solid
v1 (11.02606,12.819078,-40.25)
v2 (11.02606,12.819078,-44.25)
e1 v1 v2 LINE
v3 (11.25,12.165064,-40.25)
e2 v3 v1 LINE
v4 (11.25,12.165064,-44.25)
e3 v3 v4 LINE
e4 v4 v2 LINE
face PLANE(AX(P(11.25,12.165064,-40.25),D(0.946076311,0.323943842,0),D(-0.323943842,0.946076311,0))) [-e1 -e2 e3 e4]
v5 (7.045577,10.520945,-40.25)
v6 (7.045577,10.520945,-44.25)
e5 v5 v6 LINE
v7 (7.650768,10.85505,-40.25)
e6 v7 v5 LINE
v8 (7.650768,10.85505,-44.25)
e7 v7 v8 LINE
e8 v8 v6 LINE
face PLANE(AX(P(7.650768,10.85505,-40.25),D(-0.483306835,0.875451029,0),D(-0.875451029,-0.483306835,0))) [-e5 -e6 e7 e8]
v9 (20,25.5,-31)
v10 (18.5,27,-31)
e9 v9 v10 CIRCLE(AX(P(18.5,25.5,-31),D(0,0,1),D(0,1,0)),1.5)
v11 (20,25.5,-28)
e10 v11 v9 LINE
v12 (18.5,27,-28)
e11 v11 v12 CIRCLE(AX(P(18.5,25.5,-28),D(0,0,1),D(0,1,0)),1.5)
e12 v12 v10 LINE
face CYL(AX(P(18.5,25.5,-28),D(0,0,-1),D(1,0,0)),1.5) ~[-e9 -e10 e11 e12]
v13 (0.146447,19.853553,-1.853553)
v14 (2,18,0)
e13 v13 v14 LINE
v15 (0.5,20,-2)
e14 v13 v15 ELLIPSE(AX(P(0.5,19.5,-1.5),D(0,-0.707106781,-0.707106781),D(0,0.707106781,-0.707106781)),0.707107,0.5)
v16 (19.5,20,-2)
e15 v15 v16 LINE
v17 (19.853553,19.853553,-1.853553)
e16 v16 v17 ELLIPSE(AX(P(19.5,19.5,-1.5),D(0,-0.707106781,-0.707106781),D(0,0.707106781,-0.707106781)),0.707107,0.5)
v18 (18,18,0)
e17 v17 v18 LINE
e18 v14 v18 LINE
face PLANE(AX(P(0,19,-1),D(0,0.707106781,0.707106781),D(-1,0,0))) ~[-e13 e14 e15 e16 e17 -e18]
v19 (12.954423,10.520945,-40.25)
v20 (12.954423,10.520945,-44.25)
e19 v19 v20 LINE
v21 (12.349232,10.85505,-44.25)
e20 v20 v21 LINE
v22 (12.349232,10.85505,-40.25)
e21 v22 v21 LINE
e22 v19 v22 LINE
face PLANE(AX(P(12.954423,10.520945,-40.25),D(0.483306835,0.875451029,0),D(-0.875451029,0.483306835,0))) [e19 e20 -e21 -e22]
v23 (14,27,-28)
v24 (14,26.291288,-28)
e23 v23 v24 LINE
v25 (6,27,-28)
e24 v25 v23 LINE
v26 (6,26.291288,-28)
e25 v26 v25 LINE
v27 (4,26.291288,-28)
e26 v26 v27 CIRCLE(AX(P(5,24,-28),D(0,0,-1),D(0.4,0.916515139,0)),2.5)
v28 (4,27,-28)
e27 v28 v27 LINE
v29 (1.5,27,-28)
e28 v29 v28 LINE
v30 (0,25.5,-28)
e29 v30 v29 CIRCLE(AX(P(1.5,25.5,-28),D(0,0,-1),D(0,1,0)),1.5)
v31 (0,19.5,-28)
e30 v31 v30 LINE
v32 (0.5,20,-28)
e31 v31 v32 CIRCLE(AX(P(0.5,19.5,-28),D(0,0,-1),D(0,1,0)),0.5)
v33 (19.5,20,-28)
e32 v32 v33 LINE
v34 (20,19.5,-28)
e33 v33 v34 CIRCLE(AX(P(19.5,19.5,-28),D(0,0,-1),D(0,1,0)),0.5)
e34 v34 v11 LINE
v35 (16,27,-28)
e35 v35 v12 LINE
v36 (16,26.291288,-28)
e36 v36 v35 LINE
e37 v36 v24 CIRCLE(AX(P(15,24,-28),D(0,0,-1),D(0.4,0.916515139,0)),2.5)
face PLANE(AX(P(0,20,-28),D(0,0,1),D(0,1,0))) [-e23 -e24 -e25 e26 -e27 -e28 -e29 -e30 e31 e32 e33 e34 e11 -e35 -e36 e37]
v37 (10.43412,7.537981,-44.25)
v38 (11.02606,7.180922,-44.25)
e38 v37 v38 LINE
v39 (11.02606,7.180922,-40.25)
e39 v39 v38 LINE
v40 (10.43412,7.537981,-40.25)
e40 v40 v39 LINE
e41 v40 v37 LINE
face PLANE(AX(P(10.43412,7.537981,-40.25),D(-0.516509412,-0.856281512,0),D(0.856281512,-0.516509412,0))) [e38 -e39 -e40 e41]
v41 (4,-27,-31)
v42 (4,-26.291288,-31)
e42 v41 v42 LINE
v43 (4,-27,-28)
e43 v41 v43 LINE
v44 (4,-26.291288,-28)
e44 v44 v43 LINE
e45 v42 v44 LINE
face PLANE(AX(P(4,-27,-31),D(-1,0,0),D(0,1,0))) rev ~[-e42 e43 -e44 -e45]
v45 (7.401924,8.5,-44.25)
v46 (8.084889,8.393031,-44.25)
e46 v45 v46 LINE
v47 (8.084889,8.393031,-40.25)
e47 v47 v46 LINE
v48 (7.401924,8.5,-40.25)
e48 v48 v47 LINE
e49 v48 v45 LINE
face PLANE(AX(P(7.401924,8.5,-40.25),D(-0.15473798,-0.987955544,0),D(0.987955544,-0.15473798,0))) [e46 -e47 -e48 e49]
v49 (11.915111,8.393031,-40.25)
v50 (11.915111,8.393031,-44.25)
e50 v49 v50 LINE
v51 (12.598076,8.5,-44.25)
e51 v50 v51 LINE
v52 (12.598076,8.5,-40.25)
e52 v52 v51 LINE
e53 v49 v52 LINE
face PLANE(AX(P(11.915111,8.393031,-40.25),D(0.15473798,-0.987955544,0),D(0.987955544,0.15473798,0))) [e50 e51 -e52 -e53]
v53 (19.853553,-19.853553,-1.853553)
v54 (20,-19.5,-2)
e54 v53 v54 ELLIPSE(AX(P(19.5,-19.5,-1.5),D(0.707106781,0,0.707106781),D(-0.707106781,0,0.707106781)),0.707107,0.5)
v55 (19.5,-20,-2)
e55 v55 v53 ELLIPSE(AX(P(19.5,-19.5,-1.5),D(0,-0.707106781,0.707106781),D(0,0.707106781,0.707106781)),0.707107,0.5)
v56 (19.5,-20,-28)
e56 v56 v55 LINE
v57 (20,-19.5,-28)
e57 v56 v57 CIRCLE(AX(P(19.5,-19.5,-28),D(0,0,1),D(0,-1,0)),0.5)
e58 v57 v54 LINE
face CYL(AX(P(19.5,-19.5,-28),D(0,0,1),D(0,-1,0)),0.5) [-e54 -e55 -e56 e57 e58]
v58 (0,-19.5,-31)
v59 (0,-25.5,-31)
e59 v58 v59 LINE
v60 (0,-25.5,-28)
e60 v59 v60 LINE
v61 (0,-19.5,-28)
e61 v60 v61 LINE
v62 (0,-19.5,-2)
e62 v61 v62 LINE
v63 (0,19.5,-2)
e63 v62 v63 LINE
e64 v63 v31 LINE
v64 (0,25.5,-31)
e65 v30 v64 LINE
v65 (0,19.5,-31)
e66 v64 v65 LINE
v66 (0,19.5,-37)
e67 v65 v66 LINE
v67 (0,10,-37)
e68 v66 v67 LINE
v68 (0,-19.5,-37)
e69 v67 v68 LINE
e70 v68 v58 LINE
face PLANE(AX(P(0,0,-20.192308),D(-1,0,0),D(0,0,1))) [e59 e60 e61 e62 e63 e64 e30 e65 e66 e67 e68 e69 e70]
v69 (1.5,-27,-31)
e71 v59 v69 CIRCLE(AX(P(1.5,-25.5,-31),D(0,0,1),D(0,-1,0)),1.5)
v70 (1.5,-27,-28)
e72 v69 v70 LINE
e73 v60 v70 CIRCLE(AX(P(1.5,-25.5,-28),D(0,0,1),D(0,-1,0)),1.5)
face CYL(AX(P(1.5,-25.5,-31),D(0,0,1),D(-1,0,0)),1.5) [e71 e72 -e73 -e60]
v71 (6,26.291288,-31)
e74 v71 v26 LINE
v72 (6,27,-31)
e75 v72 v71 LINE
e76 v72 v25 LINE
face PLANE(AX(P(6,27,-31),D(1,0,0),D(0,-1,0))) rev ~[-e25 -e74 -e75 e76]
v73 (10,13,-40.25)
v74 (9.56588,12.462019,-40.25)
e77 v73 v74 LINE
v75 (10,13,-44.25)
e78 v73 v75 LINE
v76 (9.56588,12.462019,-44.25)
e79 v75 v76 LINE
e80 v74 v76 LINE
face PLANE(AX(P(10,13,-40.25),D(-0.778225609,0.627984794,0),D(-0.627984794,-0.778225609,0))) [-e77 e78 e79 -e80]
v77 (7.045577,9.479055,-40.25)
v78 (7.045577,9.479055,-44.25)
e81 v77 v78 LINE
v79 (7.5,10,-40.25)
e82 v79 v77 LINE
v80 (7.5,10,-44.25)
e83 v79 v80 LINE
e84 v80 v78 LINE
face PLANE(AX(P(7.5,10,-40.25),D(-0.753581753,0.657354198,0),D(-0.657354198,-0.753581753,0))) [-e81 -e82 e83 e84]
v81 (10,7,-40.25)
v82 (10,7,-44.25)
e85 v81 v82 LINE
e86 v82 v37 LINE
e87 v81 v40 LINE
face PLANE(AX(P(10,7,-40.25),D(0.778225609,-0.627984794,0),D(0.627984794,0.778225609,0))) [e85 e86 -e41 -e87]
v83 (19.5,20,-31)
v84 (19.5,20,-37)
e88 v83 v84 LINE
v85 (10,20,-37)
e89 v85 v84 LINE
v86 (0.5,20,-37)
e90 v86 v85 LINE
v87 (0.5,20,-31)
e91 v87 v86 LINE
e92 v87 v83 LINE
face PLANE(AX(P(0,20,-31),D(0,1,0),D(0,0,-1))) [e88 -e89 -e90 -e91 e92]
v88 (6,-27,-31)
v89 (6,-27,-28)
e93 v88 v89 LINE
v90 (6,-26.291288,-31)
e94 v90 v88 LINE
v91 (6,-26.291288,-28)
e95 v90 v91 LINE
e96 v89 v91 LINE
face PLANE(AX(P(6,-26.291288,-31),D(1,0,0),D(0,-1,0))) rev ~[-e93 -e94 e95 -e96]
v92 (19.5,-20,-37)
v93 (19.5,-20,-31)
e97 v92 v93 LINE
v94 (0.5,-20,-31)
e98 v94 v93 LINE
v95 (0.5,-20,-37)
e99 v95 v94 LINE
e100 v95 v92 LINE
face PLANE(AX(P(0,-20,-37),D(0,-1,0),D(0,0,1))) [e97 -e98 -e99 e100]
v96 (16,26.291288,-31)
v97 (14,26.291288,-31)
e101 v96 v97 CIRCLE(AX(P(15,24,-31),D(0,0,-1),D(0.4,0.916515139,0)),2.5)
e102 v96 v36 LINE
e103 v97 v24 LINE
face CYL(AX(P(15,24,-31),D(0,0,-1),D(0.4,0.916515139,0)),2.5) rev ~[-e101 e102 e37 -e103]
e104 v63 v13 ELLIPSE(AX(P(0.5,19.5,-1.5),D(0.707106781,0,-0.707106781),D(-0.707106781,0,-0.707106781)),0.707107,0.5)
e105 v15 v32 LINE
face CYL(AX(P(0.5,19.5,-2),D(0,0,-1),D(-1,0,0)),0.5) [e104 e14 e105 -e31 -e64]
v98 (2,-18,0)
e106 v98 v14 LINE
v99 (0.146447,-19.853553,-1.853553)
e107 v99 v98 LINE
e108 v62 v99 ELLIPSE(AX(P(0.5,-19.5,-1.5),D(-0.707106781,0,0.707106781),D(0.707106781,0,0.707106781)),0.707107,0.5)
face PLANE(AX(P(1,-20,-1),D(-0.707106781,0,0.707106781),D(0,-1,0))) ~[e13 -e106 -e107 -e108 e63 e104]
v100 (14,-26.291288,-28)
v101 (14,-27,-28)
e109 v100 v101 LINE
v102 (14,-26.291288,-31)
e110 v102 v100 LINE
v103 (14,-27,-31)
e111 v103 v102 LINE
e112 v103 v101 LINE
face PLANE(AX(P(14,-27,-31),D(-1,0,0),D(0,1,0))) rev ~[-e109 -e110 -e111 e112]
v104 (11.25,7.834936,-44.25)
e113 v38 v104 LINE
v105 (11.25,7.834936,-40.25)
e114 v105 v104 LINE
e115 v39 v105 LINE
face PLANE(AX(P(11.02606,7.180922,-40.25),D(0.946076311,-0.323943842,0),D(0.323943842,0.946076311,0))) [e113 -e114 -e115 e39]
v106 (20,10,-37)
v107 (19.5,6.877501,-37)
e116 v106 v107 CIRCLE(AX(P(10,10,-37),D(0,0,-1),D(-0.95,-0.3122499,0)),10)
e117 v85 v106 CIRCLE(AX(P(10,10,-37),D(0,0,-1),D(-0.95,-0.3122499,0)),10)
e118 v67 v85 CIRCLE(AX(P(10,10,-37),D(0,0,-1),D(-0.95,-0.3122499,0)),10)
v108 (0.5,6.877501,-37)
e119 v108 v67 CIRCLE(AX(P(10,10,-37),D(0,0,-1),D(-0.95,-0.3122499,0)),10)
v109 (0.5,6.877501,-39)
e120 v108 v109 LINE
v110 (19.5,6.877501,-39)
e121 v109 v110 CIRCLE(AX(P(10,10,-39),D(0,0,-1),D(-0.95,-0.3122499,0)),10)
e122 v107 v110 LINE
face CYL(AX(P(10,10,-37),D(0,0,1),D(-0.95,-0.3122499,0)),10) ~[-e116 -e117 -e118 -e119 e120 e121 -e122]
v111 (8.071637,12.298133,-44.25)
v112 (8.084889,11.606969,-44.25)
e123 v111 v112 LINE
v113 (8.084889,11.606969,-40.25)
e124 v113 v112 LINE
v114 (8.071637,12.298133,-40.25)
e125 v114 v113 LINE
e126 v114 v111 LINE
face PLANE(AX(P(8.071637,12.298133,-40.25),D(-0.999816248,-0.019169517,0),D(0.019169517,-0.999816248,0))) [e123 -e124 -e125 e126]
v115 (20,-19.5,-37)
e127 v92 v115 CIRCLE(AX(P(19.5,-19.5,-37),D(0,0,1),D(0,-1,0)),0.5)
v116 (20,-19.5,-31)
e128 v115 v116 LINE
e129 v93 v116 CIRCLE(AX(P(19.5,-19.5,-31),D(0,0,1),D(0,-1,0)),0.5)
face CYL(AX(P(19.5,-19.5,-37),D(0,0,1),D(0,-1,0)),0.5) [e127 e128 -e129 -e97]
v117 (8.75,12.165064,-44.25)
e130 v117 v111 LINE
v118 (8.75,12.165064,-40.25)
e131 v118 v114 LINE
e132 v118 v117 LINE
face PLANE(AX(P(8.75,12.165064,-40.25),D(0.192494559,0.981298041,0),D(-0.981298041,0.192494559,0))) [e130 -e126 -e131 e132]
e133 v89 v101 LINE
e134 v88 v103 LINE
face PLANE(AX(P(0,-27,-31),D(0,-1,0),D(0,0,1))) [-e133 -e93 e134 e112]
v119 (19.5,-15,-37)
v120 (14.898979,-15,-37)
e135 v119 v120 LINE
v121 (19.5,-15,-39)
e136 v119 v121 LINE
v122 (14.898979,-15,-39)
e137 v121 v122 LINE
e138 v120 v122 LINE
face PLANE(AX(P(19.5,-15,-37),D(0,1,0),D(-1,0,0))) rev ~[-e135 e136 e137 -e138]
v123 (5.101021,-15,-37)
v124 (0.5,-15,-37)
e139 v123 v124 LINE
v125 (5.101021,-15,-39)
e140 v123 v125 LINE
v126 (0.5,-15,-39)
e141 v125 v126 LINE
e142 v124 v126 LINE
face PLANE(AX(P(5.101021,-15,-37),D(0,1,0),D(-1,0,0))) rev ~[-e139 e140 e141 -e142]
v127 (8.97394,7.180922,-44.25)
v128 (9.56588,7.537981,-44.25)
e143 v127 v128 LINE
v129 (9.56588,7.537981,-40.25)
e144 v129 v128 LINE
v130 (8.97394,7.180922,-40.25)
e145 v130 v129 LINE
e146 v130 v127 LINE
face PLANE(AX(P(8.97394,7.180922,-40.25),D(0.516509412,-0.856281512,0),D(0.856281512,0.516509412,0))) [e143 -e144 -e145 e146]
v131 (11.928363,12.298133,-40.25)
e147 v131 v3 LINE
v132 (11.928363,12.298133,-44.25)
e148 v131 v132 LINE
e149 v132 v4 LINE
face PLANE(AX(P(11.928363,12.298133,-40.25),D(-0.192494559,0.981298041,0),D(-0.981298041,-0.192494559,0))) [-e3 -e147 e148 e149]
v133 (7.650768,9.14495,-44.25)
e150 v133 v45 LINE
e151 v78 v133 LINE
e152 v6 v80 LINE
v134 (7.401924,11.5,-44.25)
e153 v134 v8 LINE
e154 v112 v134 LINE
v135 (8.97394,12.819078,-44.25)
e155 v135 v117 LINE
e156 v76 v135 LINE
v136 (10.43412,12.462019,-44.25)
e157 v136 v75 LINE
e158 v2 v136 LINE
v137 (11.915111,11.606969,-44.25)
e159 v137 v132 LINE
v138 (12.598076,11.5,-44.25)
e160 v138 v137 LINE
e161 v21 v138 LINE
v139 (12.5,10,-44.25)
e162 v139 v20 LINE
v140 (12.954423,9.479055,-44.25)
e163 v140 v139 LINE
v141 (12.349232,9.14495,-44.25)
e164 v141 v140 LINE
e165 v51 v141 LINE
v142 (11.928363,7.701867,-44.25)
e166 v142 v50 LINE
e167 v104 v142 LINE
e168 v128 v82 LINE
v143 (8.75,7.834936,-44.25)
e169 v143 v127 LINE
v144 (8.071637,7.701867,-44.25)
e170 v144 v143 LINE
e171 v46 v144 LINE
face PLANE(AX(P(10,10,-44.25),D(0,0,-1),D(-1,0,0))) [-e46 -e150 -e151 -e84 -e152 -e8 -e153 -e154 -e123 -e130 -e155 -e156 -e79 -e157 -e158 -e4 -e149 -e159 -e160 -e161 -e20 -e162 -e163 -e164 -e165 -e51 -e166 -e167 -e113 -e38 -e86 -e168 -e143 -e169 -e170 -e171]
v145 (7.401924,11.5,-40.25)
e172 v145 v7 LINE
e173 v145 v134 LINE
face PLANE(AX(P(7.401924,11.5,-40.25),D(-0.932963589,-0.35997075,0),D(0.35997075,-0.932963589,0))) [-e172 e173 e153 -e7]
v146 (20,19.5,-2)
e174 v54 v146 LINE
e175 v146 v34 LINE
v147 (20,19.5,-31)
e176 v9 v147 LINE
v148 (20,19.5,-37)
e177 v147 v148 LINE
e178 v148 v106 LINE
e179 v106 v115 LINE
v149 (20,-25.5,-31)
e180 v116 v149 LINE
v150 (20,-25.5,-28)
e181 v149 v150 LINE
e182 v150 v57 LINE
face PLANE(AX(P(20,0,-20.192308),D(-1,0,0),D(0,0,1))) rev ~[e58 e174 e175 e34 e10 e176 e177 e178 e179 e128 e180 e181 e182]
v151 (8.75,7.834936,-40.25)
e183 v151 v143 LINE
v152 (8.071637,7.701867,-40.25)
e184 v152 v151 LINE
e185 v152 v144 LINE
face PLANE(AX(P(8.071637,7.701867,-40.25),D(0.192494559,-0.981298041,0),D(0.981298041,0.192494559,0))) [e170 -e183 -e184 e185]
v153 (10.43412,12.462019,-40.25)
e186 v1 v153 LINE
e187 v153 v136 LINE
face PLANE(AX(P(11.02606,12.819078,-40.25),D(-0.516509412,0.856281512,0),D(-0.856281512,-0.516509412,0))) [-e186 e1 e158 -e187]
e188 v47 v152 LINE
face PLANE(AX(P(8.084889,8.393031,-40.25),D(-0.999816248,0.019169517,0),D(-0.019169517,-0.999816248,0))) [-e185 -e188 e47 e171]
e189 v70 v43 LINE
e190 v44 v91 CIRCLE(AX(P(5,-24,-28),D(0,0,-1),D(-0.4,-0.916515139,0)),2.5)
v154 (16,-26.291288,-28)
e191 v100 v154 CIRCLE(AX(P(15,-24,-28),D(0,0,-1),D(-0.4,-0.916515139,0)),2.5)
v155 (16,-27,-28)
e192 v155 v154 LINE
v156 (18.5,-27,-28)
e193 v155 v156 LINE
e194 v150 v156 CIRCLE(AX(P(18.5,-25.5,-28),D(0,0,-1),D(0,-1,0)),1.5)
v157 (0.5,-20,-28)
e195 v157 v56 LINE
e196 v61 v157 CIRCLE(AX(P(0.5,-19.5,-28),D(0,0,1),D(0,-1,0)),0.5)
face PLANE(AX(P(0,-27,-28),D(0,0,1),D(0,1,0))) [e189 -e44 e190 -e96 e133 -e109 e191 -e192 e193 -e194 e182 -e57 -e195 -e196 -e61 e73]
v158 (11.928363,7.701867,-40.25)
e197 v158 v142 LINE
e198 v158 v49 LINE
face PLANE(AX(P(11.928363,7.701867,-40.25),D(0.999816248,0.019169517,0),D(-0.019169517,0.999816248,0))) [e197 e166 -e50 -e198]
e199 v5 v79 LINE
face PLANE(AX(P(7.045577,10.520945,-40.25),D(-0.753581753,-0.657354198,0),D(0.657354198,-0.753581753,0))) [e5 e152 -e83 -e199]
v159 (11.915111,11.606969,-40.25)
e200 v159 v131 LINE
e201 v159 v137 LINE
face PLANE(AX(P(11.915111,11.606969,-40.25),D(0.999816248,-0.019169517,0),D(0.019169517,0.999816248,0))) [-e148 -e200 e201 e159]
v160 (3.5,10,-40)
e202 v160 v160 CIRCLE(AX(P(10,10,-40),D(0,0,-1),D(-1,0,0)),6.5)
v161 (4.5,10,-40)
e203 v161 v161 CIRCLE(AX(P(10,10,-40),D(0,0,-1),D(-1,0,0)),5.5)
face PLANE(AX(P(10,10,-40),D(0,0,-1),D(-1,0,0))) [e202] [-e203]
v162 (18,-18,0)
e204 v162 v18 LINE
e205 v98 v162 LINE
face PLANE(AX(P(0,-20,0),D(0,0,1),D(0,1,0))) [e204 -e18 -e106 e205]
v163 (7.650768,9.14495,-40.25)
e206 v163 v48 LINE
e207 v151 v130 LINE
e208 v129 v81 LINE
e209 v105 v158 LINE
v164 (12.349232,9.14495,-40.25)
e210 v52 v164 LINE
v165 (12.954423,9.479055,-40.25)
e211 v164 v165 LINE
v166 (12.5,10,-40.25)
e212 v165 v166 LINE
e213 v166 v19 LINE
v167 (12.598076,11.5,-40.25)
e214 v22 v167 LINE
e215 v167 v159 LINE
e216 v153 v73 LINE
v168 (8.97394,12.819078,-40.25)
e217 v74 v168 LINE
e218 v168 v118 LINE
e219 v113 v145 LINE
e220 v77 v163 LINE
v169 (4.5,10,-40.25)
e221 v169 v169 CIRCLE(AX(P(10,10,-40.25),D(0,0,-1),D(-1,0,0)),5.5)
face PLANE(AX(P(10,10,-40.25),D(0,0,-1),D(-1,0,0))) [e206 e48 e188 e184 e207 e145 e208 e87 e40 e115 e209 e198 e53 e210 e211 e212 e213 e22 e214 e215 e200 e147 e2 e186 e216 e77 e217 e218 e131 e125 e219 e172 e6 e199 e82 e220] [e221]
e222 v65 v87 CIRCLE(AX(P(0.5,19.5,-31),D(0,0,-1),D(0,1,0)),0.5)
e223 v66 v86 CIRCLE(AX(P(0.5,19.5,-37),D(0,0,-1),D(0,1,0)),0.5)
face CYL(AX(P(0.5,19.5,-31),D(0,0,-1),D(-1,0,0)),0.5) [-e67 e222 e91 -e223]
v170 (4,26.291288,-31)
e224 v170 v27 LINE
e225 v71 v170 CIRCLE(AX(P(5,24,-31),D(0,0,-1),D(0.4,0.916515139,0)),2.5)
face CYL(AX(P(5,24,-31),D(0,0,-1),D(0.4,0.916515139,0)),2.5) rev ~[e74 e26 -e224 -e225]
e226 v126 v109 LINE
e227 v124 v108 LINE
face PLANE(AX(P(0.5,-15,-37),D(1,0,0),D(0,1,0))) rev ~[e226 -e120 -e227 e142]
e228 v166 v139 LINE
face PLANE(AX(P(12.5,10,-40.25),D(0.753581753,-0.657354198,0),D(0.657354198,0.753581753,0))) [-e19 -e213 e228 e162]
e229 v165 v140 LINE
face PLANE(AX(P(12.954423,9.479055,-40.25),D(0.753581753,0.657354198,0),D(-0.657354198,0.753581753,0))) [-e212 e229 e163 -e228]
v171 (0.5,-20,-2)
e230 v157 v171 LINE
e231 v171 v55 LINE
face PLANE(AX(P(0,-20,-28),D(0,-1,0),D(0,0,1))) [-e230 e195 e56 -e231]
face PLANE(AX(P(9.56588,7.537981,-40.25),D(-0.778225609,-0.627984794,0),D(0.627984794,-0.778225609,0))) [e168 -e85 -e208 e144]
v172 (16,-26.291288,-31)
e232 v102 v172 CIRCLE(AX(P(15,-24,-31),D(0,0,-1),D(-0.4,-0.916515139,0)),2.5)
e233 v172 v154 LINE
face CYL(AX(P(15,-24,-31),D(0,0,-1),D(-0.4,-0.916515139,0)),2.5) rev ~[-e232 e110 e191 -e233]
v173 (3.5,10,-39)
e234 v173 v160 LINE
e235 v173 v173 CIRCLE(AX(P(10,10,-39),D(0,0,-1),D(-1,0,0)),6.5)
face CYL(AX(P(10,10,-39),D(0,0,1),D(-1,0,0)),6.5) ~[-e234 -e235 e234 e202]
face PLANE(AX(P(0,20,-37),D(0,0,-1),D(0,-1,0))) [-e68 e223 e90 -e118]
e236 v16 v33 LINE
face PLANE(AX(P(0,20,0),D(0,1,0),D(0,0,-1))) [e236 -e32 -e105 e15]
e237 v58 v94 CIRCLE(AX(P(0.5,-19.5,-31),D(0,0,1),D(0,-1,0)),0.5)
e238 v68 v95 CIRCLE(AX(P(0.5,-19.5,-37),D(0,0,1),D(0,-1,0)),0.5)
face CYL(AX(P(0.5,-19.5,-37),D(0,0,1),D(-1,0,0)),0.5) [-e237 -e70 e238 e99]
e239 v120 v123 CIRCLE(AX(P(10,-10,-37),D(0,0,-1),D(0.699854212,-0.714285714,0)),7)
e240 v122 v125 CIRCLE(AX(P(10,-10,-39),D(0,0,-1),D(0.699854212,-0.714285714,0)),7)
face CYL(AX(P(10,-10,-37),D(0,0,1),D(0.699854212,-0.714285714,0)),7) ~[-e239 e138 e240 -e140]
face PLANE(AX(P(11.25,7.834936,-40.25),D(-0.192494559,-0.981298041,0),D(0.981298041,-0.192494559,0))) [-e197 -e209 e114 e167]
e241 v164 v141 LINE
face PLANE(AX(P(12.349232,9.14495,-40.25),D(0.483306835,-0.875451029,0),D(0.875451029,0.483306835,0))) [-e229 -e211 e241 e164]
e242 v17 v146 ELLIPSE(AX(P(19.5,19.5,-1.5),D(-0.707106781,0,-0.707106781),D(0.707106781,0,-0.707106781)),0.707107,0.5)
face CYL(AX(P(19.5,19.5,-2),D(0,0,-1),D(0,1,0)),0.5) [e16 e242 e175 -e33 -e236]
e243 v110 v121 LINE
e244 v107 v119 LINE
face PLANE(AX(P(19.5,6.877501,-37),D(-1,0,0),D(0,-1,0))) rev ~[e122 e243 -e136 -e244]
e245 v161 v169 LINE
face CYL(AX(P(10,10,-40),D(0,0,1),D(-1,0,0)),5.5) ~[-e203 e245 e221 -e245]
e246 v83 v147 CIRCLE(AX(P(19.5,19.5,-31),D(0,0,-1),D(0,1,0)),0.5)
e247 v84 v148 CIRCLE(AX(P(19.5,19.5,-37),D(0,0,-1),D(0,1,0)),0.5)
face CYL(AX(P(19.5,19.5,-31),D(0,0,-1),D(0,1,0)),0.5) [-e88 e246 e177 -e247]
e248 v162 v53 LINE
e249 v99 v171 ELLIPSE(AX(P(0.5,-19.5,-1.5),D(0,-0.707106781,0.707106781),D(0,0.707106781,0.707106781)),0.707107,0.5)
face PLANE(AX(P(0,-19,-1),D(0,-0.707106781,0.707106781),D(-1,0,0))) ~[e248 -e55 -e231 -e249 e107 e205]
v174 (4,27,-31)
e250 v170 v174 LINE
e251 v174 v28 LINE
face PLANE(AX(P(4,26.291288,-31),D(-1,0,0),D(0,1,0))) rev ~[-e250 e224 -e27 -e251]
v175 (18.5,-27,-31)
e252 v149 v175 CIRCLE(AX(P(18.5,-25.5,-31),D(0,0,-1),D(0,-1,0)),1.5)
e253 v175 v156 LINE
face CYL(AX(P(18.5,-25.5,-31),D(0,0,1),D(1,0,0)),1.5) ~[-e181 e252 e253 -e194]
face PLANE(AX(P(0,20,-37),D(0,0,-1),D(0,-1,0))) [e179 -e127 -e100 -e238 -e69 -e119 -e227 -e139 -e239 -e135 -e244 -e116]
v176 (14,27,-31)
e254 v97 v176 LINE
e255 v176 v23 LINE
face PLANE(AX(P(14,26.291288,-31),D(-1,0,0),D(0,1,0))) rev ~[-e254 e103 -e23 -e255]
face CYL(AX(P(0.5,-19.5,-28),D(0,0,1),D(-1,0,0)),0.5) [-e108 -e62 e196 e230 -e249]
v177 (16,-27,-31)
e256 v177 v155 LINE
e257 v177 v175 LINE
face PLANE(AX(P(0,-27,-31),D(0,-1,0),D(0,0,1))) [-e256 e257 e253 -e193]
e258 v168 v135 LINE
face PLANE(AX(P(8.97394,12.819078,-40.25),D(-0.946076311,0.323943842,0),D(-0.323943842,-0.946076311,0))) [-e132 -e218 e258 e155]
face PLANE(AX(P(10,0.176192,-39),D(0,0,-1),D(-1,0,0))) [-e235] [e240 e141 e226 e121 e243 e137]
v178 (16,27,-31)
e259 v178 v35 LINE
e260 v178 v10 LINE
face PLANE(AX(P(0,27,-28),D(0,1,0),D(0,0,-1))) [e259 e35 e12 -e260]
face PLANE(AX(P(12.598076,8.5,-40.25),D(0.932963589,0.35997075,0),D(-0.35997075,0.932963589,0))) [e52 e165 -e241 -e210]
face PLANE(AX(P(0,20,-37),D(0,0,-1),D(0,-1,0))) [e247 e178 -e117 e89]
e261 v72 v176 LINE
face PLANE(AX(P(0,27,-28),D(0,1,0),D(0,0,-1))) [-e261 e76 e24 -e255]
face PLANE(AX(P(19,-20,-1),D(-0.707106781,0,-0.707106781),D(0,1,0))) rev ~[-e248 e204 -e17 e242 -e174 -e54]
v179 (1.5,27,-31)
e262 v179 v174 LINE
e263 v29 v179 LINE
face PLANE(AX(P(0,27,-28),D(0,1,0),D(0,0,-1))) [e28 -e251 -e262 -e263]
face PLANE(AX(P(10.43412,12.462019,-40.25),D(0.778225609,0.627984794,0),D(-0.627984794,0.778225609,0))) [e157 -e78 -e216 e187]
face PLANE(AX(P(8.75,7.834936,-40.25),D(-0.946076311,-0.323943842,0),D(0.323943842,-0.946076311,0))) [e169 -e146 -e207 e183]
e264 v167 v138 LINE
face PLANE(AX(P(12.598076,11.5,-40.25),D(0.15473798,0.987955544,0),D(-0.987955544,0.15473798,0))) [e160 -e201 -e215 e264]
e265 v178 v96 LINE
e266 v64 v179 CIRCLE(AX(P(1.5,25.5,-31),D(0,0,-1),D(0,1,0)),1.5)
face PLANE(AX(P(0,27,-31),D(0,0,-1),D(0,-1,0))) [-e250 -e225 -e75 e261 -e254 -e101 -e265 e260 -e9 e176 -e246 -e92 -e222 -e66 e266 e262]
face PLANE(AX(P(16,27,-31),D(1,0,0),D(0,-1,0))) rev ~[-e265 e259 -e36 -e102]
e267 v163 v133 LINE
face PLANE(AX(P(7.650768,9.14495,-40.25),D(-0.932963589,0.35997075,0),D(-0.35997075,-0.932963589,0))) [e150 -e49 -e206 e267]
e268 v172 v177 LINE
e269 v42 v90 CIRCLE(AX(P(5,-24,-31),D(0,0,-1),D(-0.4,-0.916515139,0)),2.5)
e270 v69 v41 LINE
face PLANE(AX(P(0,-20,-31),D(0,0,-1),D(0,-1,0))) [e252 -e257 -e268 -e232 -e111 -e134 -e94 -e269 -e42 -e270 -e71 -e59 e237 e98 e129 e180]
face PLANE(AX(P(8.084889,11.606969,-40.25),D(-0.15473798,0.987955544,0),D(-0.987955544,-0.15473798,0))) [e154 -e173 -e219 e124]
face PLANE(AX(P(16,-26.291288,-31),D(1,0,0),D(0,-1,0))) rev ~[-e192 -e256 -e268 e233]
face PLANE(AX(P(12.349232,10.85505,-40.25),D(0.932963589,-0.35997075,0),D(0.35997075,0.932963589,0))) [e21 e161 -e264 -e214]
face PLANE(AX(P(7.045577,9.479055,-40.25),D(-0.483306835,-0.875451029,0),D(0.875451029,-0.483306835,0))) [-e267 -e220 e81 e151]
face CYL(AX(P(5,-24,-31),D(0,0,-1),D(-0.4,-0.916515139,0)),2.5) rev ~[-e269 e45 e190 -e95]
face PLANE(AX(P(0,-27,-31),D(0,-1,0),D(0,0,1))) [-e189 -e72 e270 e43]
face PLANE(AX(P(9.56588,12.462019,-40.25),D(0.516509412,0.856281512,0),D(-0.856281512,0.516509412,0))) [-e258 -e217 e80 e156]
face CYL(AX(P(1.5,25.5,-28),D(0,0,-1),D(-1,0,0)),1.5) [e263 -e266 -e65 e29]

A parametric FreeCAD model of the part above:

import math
import FreeCAD as App
import Part
import Sketcher
from FreeCAD import Vector
Q = App.Units.Quantity


def edges_at(feature, points):
    """Names of the edges that pass closest to the given points."""
    edges = feature.Shape.Edges
    near = lambda p: min(range(len(edges)), key=lambda i: edges[i].distToShape(Part.Vertex(*p))[0])
    return sorted({f"Edge{near(p) + 1}" for p in points})

doc = App.newDocument("Part")
body = doc.addObject("PartDesign::Body", "Body")

sketch1 = body.newObject("Sketcher::SketchObject", "Sketch")
sketch1.AttachmentSupport = (doc.getObject("YZ_Plane"), [""])
sketch1.MapMode = "FlatFace"
sketch1.addGeometry([
    Part.LineSegment(Vector(20, 0, 0), Vector(-20, 0, 0)),
    Part.LineSegment(Vector(-20, 0, 0), Vector(-20, -28, 0)),
    Part.LineSegment(Vector(-20, -28, 0), Vector(-27, -28, 0)),
    Part.LineSegment(Vector(-27, -28, 0), Vector(-27, -31, 0)),
    Part.LineSegment(Vector(-27, -31, 0), Vector(-20, -31, 0)),
    Part.LineSegment(Vector(-20, -31, 0), Vector(-20, -37, 0)),
    Part.LineSegment(Vector(-20, -37, 0), Vector(20, -37, 0)),
    Part.LineSegment(Vector(20, -37, 0), Vector(20, -31, 0)),
    Part.LineSegment(Vector(20, -31, 0), Vector(27, -31, 0)),
    Part.LineSegment(Vector(27, -31, 0), Vector(27, -28, 0)),
    Part.LineSegment(Vector(27, -28, 0), Vector(20, -28, 0)),
    Part.LineSegment(Vector(20, -28, 0), Vector(20, 0, 0)),
], False)
sketch1.addConstraint([
    Sketcher.Constraint("Coincident", 0, 2, 1, 1),
    Sketcher.Constraint("Coincident", 1, 2, 2, 1),
    Sketcher.Constraint("Coincident", 2, 2, 3, 1),
    Sketcher.Constraint("Coincident", 3, 2, 4, 1),
    Sketcher.Constraint("Coincident", 4, 2, 5, 1),
    Sketcher.Constraint("Coincident", 5, 2, 6, 1),
    Sketcher.Constraint("Coincident", 6, 2, 7, 1),
    Sketcher.Constraint("Coincident", 7, 2, 8, 1),
    Sketcher.Constraint("Coincident", 8, 2, 9, 1),
    Sketcher.Constraint("Coincident", 9, 2, 10, 1),
    Sketcher.Constraint("Coincident", 10, 2, 11, 1),
    Sketcher.Constraint("Coincident", 11, 2, 0, 1),
    Sketcher.Constraint("Horizontal", 0),
    Sketcher.Constraint("Vertical", 1),
    Sketcher.Constraint("Horizontal", 2),
    Sketcher.Constraint("Vertical", 3),
    Sketcher.Constraint("Horizontal", 4),
    Sketcher.Constraint("Vertical", 5),
    Sketcher.Constraint("Horizontal", 6),
    Sketcher.Constraint("Vertical", 7),
    Sketcher.Constraint("Horizontal", 8),
    Sketcher.Constraint("Vertical", 9),
    Sketcher.Constraint("Horizontal", 10),
    Sketcher.Constraint("Vertical", 11),
    Sketcher.Constraint("Symmetric", 0, 2, 11, 2, -1, 1),
    Sketcher.Constraint("Symmetric", 4, 2, 7, 2, -2),
    Sketcher.Constraint("Symmetric", 2, 2, 9, 2, -2),
    Sketcher.Constraint("Vertical", 1, 2, 4, 2),
    Sketcher.Constraint("DistanceX", 0, 2, 0, 1, Q("40 mm")),
    Sketcher.Constraint("DistanceX", 2, 2, 2, 1, Q("7 mm")),
    Sketcher.Constraint("DistanceY", 1, 2, 1, 1, Q("28 mm")),
    Sketcher.Constraint("DistanceY", 3, 2, 3, 1, Q("3 mm")),
    Sketcher.Constraint("DistanceY", 5, 2, 5, 1, Q("6 mm")),
])
pad1 = body.newObject("PartDesign::Pad", "Pad")
pad1.Profile = sketch1
pad1.Length = 20

sketch2 = body.newObject("Sketcher::SketchObject", "Sketch001")
sketch2.AttachmentSupport = (doc.getObject("XY_Plane"), [""])
sketch2.MapMode = "FlatFace"
sketch2.AttachmentOffset = App.Placement(Vector(0, 0, -37), App.Rotation())
sketch2.addGeometry([
    Part.ArcOfCircle(Part.Circle(Vector(10, 10, 0), Vector(0, 0, 1), 10), math.radians(-18), math.radians(198)),
    Part.LineSegment(Vector(19.5, 6.9, 0), Vector(19.5, -15, 0)),
    Part.LineSegment(Vector(19.5, -15, 0), Vector(14.9, -15, 0)),
    Part.ArcOfCircle(Part.Circle(Vector(10, -10, 0), Vector(0, 0, 1), 7), math.radians(-134), math.radians(-46)),
    Part.LineSegment(Vector(5.1, -15, 0), Vector(0.5, -15, 0)),
    Part.LineSegment(Vector(0.5, -15, 0), Vector(0.5, 6.9, 0)),
], False)
sketch2.addConstraint([
    Sketcher.Constraint("Coincident", 0, 1, 1, 1),
    Sketcher.Constraint("Coincident", 1, 2, 2, 1),
    Sketcher.Constraint("Coincident", 2, 2, 3, 2),
    Sketcher.Constraint("Coincident", 3, 1, 4, 1),
    Sketcher.Constraint("Coincident", 4, 2, 5, 1),
    Sketcher.Constraint("Coincident", 5, 2, 0, 2),
    Sketcher.Constraint("Vertical", 1),
    Sketcher.Constraint("Horizontal", 2),
    Sketcher.Constraint("Horizontal", 4),
    Sketcher.Constraint("Vertical", 5),
    Sketcher.Constraint("Symmetric", 0, 3, 3, 3, -1),
    Sketcher.Constraint("Horizontal", 2, 2, 3, 1),
    Sketcher.Constraint("Horizontal", 0, 1, 5, 2),
    Sketcher.Constraint("Radius", 0, Q("10 mm")),
    Sketcher.Constraint("Radius", 3, Q("7 mm")),
    Sketcher.Constraint("DistanceX", -1, 1, 0, 3, Q("10 mm")),
    Sketcher.Constraint("DistanceY", -1, 1, 0, 3, Q("10 mm")),
    Sketcher.Constraint("DistanceY", 1, 2, -1, 1, Q("15 mm")),
    Sketcher.Constraint("DistanceX", 4, 2, 1, 2, Q("19 mm")),
])
pad2 = body.newObject("PartDesign::Pad", "Pad001")
pad2.Profile = sketch2
pad2.Length = 2
pad2.Reversed = True

sketch3 = body.newObject("Sketcher::SketchObject", "Sketch002")
sketch3.AttachmentSupport = (doc.getObject("XY_Plane"), [""])
sketch3.MapMode = "FlatFace"
sketch3.AttachmentOffset = App.Placement(Vector(0, 0, -39), App.Rotation())
sketch3.addGeometry(Part.Circle(Vector(10, 10, 0), Vector(0, 0, 1), 6), False)
sketch3.addConstraint([
    Sketcher.Constraint("Diameter", 0, Q("13 mm")),
    Sketcher.Constraint("DistanceX", -1, 1, 0, 3, Q("10 mm")),
    Sketcher.Constraint("DistanceY", -1, 1, 0, 3, Q("10 mm")),
])
pad3 = body.newObject("PartDesign::Pad", "Pad002")
pad3.Profile = sketch3
pad3.Length = 1
pad3.Reversed = True

sketch4 = body.newObject("Sketcher::SketchObject", "Sketch003")
sketch4.AttachmentSupport = (doc.getObject("XY_Plane"), [""])
sketch4.MapMode = "FlatFace"
sketch4.AttachmentOffset = App.Placement(Vector(0, 0, -40), App.Rotation())
sketch4.addGeometry(Part.Circle(Vector(10, 10, 0), Vector(0, 0, 1), 6), False)
sketch4.addConstraint([
    Sketcher.Constraint("Diameter", 0, Q("11 mm")),
    Sketcher.Constraint("DistanceX", -1, 1, 0, 3, Q("10 mm")),
    Sketcher.Constraint("DistanceY", -1, 1, 0, 3, Q("10 mm")),
])
pad4 = body.newObject("PartDesign::Pad", "Pad003")
pad4.Profile = sketch4
pad4.Length = 0.25
pad4.Reversed = True

sketch5 = body.newObject("Sketcher::SketchObject", "Sketch004")
sketch5.AttachmentSupport = (doc.getObject("XY_Plane"), [""])
sketch5.MapMode = "FlatFace"
sketch5.AttachmentOffset = App.Placement(Vector(0, 0, -40.25), App.Rotation())
sketch5.addGeometry(Part.Circle(Vector(10, 10, 0), Vector(0, 0, 1), 3), False)
sketch5.addConstraint([
    Sketcher.Constraint("Diameter", 0, Q("6 mm")),
    Sketcher.Constraint("DistanceX", -1, 1, 0, 3, Q("10 mm")),
    Sketcher.Constraint("DistanceY", -1, 1, 0, 3, Q("10 mm")),
])
pad5 = body.newObject("PartDesign::Pad", "Pad004")
pad5.Profile = sketch5
pad5.Length = 4
pad5.Reversed = True

sketch6 = body.newObject("Sketcher::SketchObject", "Sketch005")
sketch6.AttachmentSupport = (doc.getObject("XY_Plane"), [""])
sketch6.MapMode = "FlatFace"
sketch6.AttachmentOffset = App.Placement(Vector(0, 0, -40.25), App.Rotation())
sketch6.addGeometry([
    Part.ArcOfCircle(Part.Circle(Vector(10, 10, 0), Vector(0, 0, 1), 3), math.radians(90), math.radians(110)),
    Part.LineSegment(Vector(10, 13, 0), Vector(9.6, 12.5, 0)),
    Part.LineSegment(Vector(9.6, 12.5, 0), Vector(9, 12.8, 0)),
    Part.LineSegment(Vector(10.4, 12.5, 0), Vector(10, 13, 0)),
    Part.ArcOfCircle(Part.Circle(Vector(10, 10, 0), Vector(0, 0, 1), 3), math.radians(70), math.radians(90)),
    Part.LineSegment(Vector(11, 12.8, 0), Vector(10.4, 12.5, 0)),
    Part.ArcOfCircle(Part.Circle(Vector(10, 10, 0), Vector(0, 0, 1), 3), math.radians(110), math.radians(130)),
    Part.LineSegment(Vector(9, 12.8, 0), Vector(8.8, 12.2, 0)),
    Part.LineSegment(Vector(8.8, 12.2, 0), Vector(8.1, 12.3, 0)),
    Part.LineSegment(Vector(11.2, 12.2, 0), Vector(11, 12.8, 0)),
    Part.ArcOfCircle(Part.Circle(Vector(10, 10, 0), Vector(0, 0, 1), 3), math.radians(50), math.radians(70)),
    Part.LineSegment(Vector(11.9, 12.3, 0), Vector(11.2, 12.2, 0)),
    Part.ArcOfCircle(Part.Circle(Vector(10, 10, 0), Vector(0, 0, 1), 3), math.radians(130), math.radians(150)),
    Part.LineSegment(Vector(8.1, 12.3, 0), Vector(8.1, 11.6, 0)),
    Part.LineSegment(Vector(8.1, 11.6, 0), Vector(7.4, 11.5, 0)),
    Part.LineSegment(Vector(11.9, 11.6, 0), Vector(11.9, 12.3, 0)),
    Part.ArcOfCircle(Part.Circle(Vector(10, 10, 0), Vector(0, 0, 1), 3), math.radians(30), math.radians(50)),
    Part.LineSegment(Vector(12.6, 11.5, 0), Vector(11.9, 11.6, 0)),
    Part.ArcOfCircle(Part.Circle(Vector(10, 10, 0), Vector(0, 0, 1), 3), math.radians(150), math.radians(170)),
    Part.LineSegment(Vector(7.4, 11.5, 0), Vector(7.7, 10.9, 0)),
    Part.LineSegment(Vector(7.7, 10.9, 0), Vector(7, 10.5, 0)),
    Part.LineSegment(Vector(12.3, 10.9, 0), Vector(12.6, 11.5, 0)),
    Part.ArcOfCircle(Part.Circle(Vector(10, 10, 0), Vector(0, 0, 1), 3), math.radians(10), math.radians(30)),
    Part.LineSegment(Vector(13, 10.5, 0), Vector(12.3, 10.9, 0)),
    Part.ArcOfCircle(Part.Circle(Vector(10, 10, 0), Vector(0, 0, 1), 3), math.radians(170), math.radians(190)),
    Part.LineSegment(Vector(7, 10.5, 0), Vector(7.5, 10, 0)),
    Part.LineSegment(Vector(7.5, 10, 0), Vector(7, 9.5, 0)),
    Part.LineSegment(Vector(12.5, 10, 0), Vector(13, 10.5, 0)),
    Part.ArcOfCircle(Part.Circle(Vector(10, 10, 0), Vector(0, 0, 1), 3), math.radians(-10), math.radians(10)),
    Part.LineSegment(Vector(13, 9.5, 0), Vector(12.5, 10, 0)),
    Part.LineSegment(Vector(12.3, 9.1, 0), Vector(13, 9.5, 0)),
    Part.ArcOfCircle(Part.Circle(Vector(10, 10, 0), Vector(0, 0, 1), 3), math.radians(-30), math.radians(-10)),
    Part.LineSegment(Vector(12.6, 8.5, 0), Vector(12.3, 9.1, 0)),
    Part.ArcOfCircle(Part.Circle(Vector(10, 10, 0), Vector(0, 0, 1), 3), math.radians(-170), math.radians(-150)),
    Part.LineSegment(Vector(7, 9.5, 0), Vector(7.7, 9.1, 0)),
    Part.LineSegment(Vector(7.7, 9.1, 0), Vector(7.4, 8.5, 0)),
    Part.LineSegment(Vector(11.9, 8.4, 0), Vector(12.6, 8.5, 0)),
    Part.ArcOfCircle(Part.Circle(Vector(10, 10, 0), Vector(0, 0, 1), 3), math.radians(-50), math.radians(-30)),
    Part.LineSegment(Vector(11.9, 7.7, 0), Vector(11.9, 8.4, 0)),
    Part.ArcOfCircle(Part.Circle(Vector(10, 10, 0), Vector(0, 0, 1), 3), math.radians(-150), math.radians(-130)),
    Part.LineSegment(Vector(7.4, 8.5, 0), Vector(8.1, 8.4, 0)),
    Part.LineSegment(Vector(8.1, 8.4, 0), Vector(8.1, 7.7, 0)),
    Part.LineSegment(Vector(11.2, 7.8, 0), Vector(11.9, 7.7, 0)),
    Part.ArcOfCircle(Part.Circle(Vector(10, 10, 0), Vector(0, 0, 1), 3), math.radians(-70), math.radians(-50)),
    Part.LineSegment(Vector(11, 7.2, 0), Vector(11.2, 7.8, 0)),
    Part.ArcOfCircle(Part.Circle(Vector(10, 10, 0), Vector(0, 0, 1), 3), math.radians(-130), math.radians(-110)),
    Part.LineSegment(Vector(8.1, 7.7, 0), Vector(8.8, 7.8, 0)),
    Part.LineSegment(Vector(8.8, 7.8, 0), Vector(9, 7.2, 0)),
    Part.LineSegment(Vector(10.4, 7.5, 0), Vector(11, 7.2, 0)),
    Part.ArcOfCircle(Part.Circle(Vector(10, 10, 0), Vector(0, 0, 1), 3), math.radians(-90), math.radians(-70)),
    Part.LineSegment(Vector(10, 7, 0), Vector(10.4, 7.5, 0)),
    Part.ArcOfCircle(Part.Circle(Vector(10, 10, 0), Vector(0, 0, 1), 3), math.radians(-110), math.radians(-90)),
    Part.LineSegment(Vector(9, 7.2, 0), Vector(9.6, 7.5, 0)),
    Part.LineSegment(Vector(9.6, 7.5, 0), Vector(10, 7, 0)),
], False)
sketch6.addConstraint([
    Sketcher.Constraint("Coincident", 0, 1, 1, 1),
    Sketcher.Constraint("Coincident", 1, 2, 2, 1),
    Sketcher.Constraint("Coincident", 2, 2, 0, 2),
    Sketcher.Constraint("Coincident", 3, 2, 4, 2),
    Sketcher.Constraint("Coincident", 4, 1, 5, 1),
    Sketcher.Constraint("Coincident", 5, 2, 3, 1),
    Sketcher.Constraint("Coincident", 6, 1, 7, 1),
    Sketcher.Constraint("Coincident", 7, 2, 8, 1),
    Sketcher.Constraint("Coincident", 8, 2, 6, 2),
    Sketcher.Constraint("Coincident", 9, 2, 10, 2),
    Sketcher.Constraint("Coincident", 10, 1, 11, 1),
    Sketcher.Constraint("Coincident", 11, 2, 9, 1),
    Sketcher.Constraint("Coincident", 12, 1, 13, 1),
    Sketcher.Constraint("Coincident", 13, 2, 14, 1),
    Sketcher.Constraint("Coincident", 14, 2, 12, 2),
    Sketcher.Constraint("Coincident", 15, 2, 16, 2),
    Sketcher.Constraint("Coincident", 16, 1, 17, 1),
    Sketcher.Constraint("Coincident", 17, 2, 15, 1),
    Sketcher.Constraint("Coincident", 18, 1, 19, 1),
    Sketcher.Constraint("Coincident", 19, 2, 20, 1),
    Sketcher.Constraint("Coincident", 20, 2, 18, 2),
    Sketcher.Constraint("Coincident", 21, 2, 22, 2),
    Sketcher.Constraint("Coincident", 22, 1, 23, 1),
    Sketcher.Constraint("Coincident", 23, 2, 21, 1),
    Sketcher.Constraint("Coincident", 24, 1, 25, 1),
    Sketcher.Constraint("Coincident", 25, 2, 26, 1),
    Sketcher.Constraint("Coincident", 26, 2, 24, 2),
    Sketcher.Constraint("Coincident", 27, 2, 28, 2),
    Sketcher.Constraint("Coincident", 28, 1, 29, 1),
    Sketcher.Constraint("Coincident", 29, 2, 27, 1),
    Sketcher.Constraint("Coincident", 30, 2, 31, 2),
    Sketcher.Constraint("Coincident", 31, 1, 32, 1),
    Sketcher.Constraint("Coincident", 32, 2, 30, 1),
    Sketcher.Constraint("Coincident", 33, 1, 34, 1),
    Sketcher.Constraint("Coincident", 34, 2, 35, 1),
    Sketcher.Constraint("Coincident", 35, 2, 33, 2),
    Sketcher.Constraint("Coincident", 36, 2, 37, 2),
    Sketcher.Constraint("Coincident", 37, 1, 38, 1),
    Sketcher.Constraint("Coincident", 38, 2, 36, 1),
    Sketcher.Constraint("Coincident", 39, 1, 40, 1),
    Sketcher.Constraint("Coincident", 40, 2, 41, 1),
    Sketcher.Constraint("Coincident", 41, 2, 39, 2),
    Sketcher.Constraint("Coincident", 42, 2, 43, 2),
    Sketcher.Constraint("Coincident", 43, 1, 44, 1),
    Sketcher.Constraint("Coincident", 44, 2, 42, 1),
    Sketcher.Constraint("Coincident", 45, 1, 46, 1),
    Sketcher.Constraint("Coincident", 46, 2, 47, 1),
    Sketcher.Constraint("Coincident", 47, 2, 45, 2),
    Sketcher.Constraint("Coincident", 48, 2, 49, 2),
    Sketcher.Constraint("Coincident", 49, 1, 50, 1),
    Sketcher.Constraint("Coincident", 50, 2, 48, 1),
    Sketcher.Constraint("Coincident", 51, 1, 52, 1),
    Sketcher.Constraint("Coincident", 52, 2, 53, 1),
    Sketcher.Constraint("Coincident", 53, 2, 51, 2),
    Sketcher.Constraint("Coincident", 4, 3, 0, 3),
    Sketcher.Constraint("Coincident", 6, 3, 0, 3),
    Sketcher.Constraint("Coincident", 10, 3, 0, 3),
    Sketcher.Constraint("Coincident", 12, 3, 0, 3),
    Sketcher.Constraint("Coincident", 16, 3, 0, 3),
    Sketcher.Constraint("Coincident", 18, 3, 0, 3),
    Sketcher.Constraint("Coincident", 22, 3, 0, 3),
    Sketcher.Constraint("Coincident", 24, 3, 0, 3),
    Sketcher.Constraint("Coincident", 28, 3, 0, 3),
    Sketcher.Constraint("Coincident", 31, 3, 0, 3),
    Sketcher.Constraint("Coincident", 33, 3, 0, 3),
    Sketcher.Constraint("Coincident", 37, 3, 0, 3),
    Sketcher.Constraint("Coincident", 39, 3, 0, 3),
    Sketcher.Constraint("Coincident", 43, 3, 0, 3),
    Sketcher.Constraint("Coincident", 45, 3, 0, 3),
    Sketcher.Constraint("Coincident", 49, 3, 0, 3),
    Sketcher.Constraint("Coincident", 51, 3, 0, 3),
    Sketcher.Constraint("Coincident", 3, 2, 0, 1),
    Sketcher.Constraint("Coincident", 6, 1, 2, 2),
    Sketcher.Constraint("Coincident", 9, 2, 4, 1),
    Sketcher.Constraint("Coincident", 12, 1, 8, 2),
    Sketcher.Constraint("Coincident", 15, 2, 10, 1),
    Sketcher.Constraint("Coincident", 18, 1, 14, 2),
    Sketcher.Constraint("Coincident", 21, 2, 16, 1),
    Sketcher.Constraint("Coincident", 24, 1, 20, 2),
    Sketcher.Constraint("Coincident", 27, 2, 22, 1),
    Sketcher.Constraint("Coincident", 30, 2, 28, 1),
    Sketcher.Constraint("Coincident", 33, 1, 26, 2),
    Sketcher.Constraint("Coincident", 36, 2, 31, 1),
    Sketcher.Constraint("Coincident", 39, 1, 35, 2),
    Sketcher.Constraint("Coincident", 42, 2, 37, 1),
    Sketcher.Constraint("Coincident", 45, 1, 41, 2),
    Sketcher.Constraint("Coincident", 48, 2, 43, 1),
    Sketcher.Constraint("Coincident", 51, 1, 47, 2),
    Sketcher.Constraint("Parallel", 26, 27),
    Sketcher.Constraint("Parallel", 25, 29),
    Sketcher.Constraint("Parallel", 20, 30),
    Sketcher.Constraint("Parallel", 19, 32),
    Sketcher.Constraint("Parallel", 23, 34),
    Sketcher.Constraint("Parallel", 21, 35),
    Sketcher.Constraint("Parallel", 14, 36),
    Sketcher.Constraint("Parallel", 13, 38),
    Sketcher.Constraint("Parallel", 17, 40),
    Sketcher.Constraint("Parallel", 15, 41),
    Sketcher.Constraint("Parallel", 8, 42),
    Sketcher.Constraint("Parallel", 7, 44),
    Sketcher.Constraint("Parallel", 11, 46),
    Sketcher.Constraint("Parallel", 9, 47),
    Sketcher.Constraint("Parallel", 2, 48),
    Sketcher.Constraint("Parallel", 1, 50),
    Sketcher.Constraint("Parallel", 5, 52),
    Sketcher.Constraint("Parallel", 3, 53),
    Sketcher.Constraint("Horizontal", 2, 2, 4, 1),
    Sketcher.Constraint("Horizontal", 1, 2, 5, 2),
    Sketcher.Constraint("Horizontal", 8, 2, 10, 1),
    Sketcher.Constraint("Horizontal", 7, 2, 11, 2),
    Sketcher.Constraint("Horizontal", 14, 2, 16, 1),
    Sketcher.Constraint("Horizontal", 13, 2, 17, 2),
    Sketcher.Constraint("Horizontal", 20, 2, 22, 1),
    Sketcher.Constraint("Horizontal", 19, 2, 23, 2),
    Sketcher.Constraint("Horizontal", 51, 3, 25, 2),
    Sketcher.Constraint("Horizontal", 26, 2, 28, 1),
    Sketcher.Constraint("Horizontal", 25, 2, 29, 2),
    Sketcher.Constraint("Horizontal", 32, 2, 34, 2),
    Sketcher.Constraint("Horizontal", 38, 2, 40, 2),
    Sketcher.Constraint("Horizontal", 44, 2, 46, 2),
    Sketcher.Constraint("Horizontal", 50, 2, 52, 2),
    Sketcher.Constraint("Vertical", 51, 3, 0, 1),
    Sketcher.Constraint("Vertical", 21, 2, 31, 1),
    Sketcher.Constraint("Vertical", 23, 2, 32, 2),
    Sketcher.Constraint("Vertical", 15, 2, 37, 1),
    Sketcher.Constraint("Vertical", 17, 2, 38, 2),
    Sketcher.Constraint("Vertical", 9, 2, 43, 1),
    Sketcher.Constraint("Vertical", 11, 2, 44, 2),
    Sketcher.Constraint("Vertical", 3, 2, 49, 1),
    Sketcher.Constraint("Vertical", 5, 2, 50, 2),
    Sketcher.Constraint("Equal", 1, 2),
    Sketcher.Constraint("Equal", 5, 7),
    Sketcher.Constraint("Equal", 7, 8),
    Sketcher.Constraint("Equal", 11, 13),
    Sketcher.Constraint("Equal", 13, 14),
    Sketcher.Constraint("Equal", 17, 19),
    Sketcher.Constraint("Equal", 19, 20),
    Sketcher.Constraint("Equal", 23, 25),
    Sketcher.Constraint("Radius", 0, Q("3 mm")),
    Sketcher.Constraint("DistanceX", -1, 1, 0, 3, Q("10 mm")),
    Sketcher.Constraint("DistanceY", -1, 1, 0, 3, Q("10 mm")),
    Sketcher.Constraint("DistanceY", -1, 1, 14, 2, Q("11.5 mm")),
    Sketcher.Constraint("DistanceX", -1, 1, 25, 2, Q("7.5 mm")),
    Sketcher.Constraint("DistanceX", -1, 1, 7, 2, Q("8.75 mm")),
    Sketcher.Constraint("Distance", 1, Q("0.691291 mm")),
    Sketcher.Constraint("DistanceX", -1, 1, 1, 2, Q("9.56588 mm")),
])
pocket1 = body.newObject("PartDesign::Pocket", "Pocket")
pocket1.Profile = sketch6
pocket1.Length = 4

sketch7 = body.newObject("Sketcher::SketchObject", "Sketch006")
sketch7.AttachmentSupport = (doc.getObject("XY_Plane"), [""])
sketch7.MapMode = "FlatFace"
sketch7.AttachmentOffset = App.Placement(Vector(0, 0, -31), App.Rotation())
sketch7.addGeometry([
    Part.LineSegment(Vector(4, 27, 0), Vector(6, 27, 0)),
    Part.LineSegment(Vector(6, 27, 0), Vector(6, 26.3, 0)),
    Part.ArcOfCircle(Part.Circle(Vector(5, 24, 0), Vector(0, 0, 1), 2.5), math.radians(114), math.radians(426)),
    Part.LineSegment(Vector(4, 26.3, 0), Vector(4, 27, 0)),
    Part.LineSegment(Vector(14, 26.3, 0), Vector(14, 27, 0)),
    Part.LineSegment(Vector(14, 27, 0), Vector(16, 27, 0)),
    Part.LineSegment(Vector(16, 27, 0), Vector(16, 26.3, 0)),
    Part.ArcOfCircle(Part.Circle(Vector(15, 24, 0), Vector(0, 0, 1), 2.5), math.radians(114), math.radians(426)),
    Part.LineSegment(Vector(6, -27, 0), Vector(4, -27, 0)),
    Part.LineSegment(Vector(4, -27, 0), Vector(4, -26.3, 0)),
    Part.ArcOfCircle(Part.Circle(Vector(5, -24, 0), Vector(0, 0, 1), 2.5), math.radians(-66), math.radians(246)),
    Part.LineSegment(Vector(6, -26.3, 0), Vector(6, -27, 0)),
    Part.LineSegment(Vector(16, -27, 0), Vector(14, -27, 0)),
    Part.LineSegment(Vector(14, -27, 0), Vector(14, -26.3, 0)),
    Part.ArcOfCircle(Part.Circle(Vector(15, -24, 0), Vector(0, 0, 1), 2.5), math.radians(-66), math.radians(246)),
    Part.LineSegment(Vector(16, -26.3, 0), Vector(16, -27, 0)),
], False)
sketch7.addConstraint([
    Sketcher.Constraint("Coincident", 0, 2, 1, 1),
    Sketcher.Constraint("Coincident", 1, 2, 2, 2),
    Sketcher.Constraint("Coincident", 2, 1, 3, 1),
    Sketcher.Constraint("Coincident", 3, 2, 0, 1),
    Sketcher.Constraint("Coincident", 4, 2, 5, 1),
    Sketcher.Constraint("Coincident", 5, 2, 6, 1),
    Sketcher.Constraint("Coincident", 6, 2, 7, 2),
    Sketcher.Constraint("Coincident", 7, 1, 4, 1),
    Sketcher.Constraint("Coincident", 8, 2, 9, 1),
    Sketcher.Constraint("Coincident", 9, 2, 10, 2),
    Sketcher.Constraint("Coincident", 10, 1, 11, 1),
    Sketcher.Constraint("Coincident", 11, 2, 8, 1),
    Sketcher.Constraint("Coincident", 12, 2, 13, 1),
    Sketcher.Constraint("Coincident", 13, 2, 14, 2),
    Sketcher.Constraint("Coincident", 14, 1, 15, 1),
    Sketcher.Constraint("Coincident", 15, 2, 12, 1),
    Sketcher.Constraint("Horizontal", 0),
    Sketcher.Constraint("Vertical", 1),
    Sketcher.Constraint("Vertical", 3),
    Sketcher.Constraint("Vertical", 4),
    Sketcher.Constraint("Horizontal", 5),
    Sketcher.Constraint("Vertical", 6),
    Sketcher.Constraint("Horizontal", 8),
    Sketcher.Constraint("Vertical", 9),
    Sketcher.Constraint("Vertical", 11),
    Sketcher.Constraint("Horizontal", 12),
    Sketcher.Constraint("Vertical", 13),
    Sketcher.Constraint("Vertical", 15),
    Sketcher.Constraint("Equal", 2, 7),
    Sketcher.Constraint("Equal", 7, 10),
    Sketcher.Constraint("Equal", 10, 14),
    Sketcher.Constraint("Symmetric", 2, 3, 10, 3, -1),
    Sketcher.Constraint("Symmetric", 7, 3, 14, 3, -1),
    Sketcher.Constraint("Symmetric", 3, 2, 8, 2, -1),
    Sketcher.Constraint("Symmetric", 4, 2, 12, 2, -1),
    Sketcher.Constraint("Horizontal", 2, 3, 7, 3),
    Sketcher.Constraint("Horizontal", 1, 2, 2, 1),
    Sketcher.Constraint("Horizontal", 3, 2, 4, 2),
    Sketcher.Constraint("Horizontal", 2, 1, 6, 2),
    Sketcher.Constraint("Horizontal", 6, 2, 7, 1),
    Sketcher.Constraint("Horizontal", 9, 2, 10, 1),
    Sketcher.Constraint("Horizontal", 13, 2, 14, 1),
    Sketcher.Constraint("Radius", 2, Q("2.5 mm")),
    Sketcher.Constraint("DistanceX", 0, 1, 0, 2, Q("2 mm")),
    Sketcher.Constraint("DistanceX", -1, 1, 2, 3, Q("5 mm")),
    Sketcher.Constraint("DistanceY", -1, 1, 2, 3, Q("24 mm")),
    Sketcher.Constraint("DistanceX", -1, 1, 7, 3, Q("15 mm")),
    Sketcher.Constraint("DistanceY", -1, 1, 0, 2, Q("27 mm")),
])
pocket2 = body.newObject("PartDesign::Pocket", "Pocket001")
pocket2.Profile = sketch7
pocket2.Type = "ThroughAll"
pocket2.Reversed = True
doc.recompute()

fillet = body.newObject("PartDesign::Fillet", "Fillet")
fillet.Base = (pocket2, edges_at(pocket2, [
    (0, -27, -29.5),
    (0, 27, -29.5),
    (20, 27, -29.5),
    (20, -27, -29.5),
]))
fillet.Radius = 1.5
doc.recompute()

chamfer = body.newObject("PartDesign::Chamfer", "Chamfer")
chamfer.Base = (fillet, edges_at(fillet, [
    (0, 0, 0),
    (10, -20, 0),
    (10, 20, 0),
    (20, 0, 0),
]))
chamfer.Size = 2
doc.recompute()

fillet2 = body.newObject("PartDesign::Fillet", "Fillet001")
fillet2.Base = (chamfer, edges_at(chamfer, [
    (20, 20, -34),
    (0, 20, -15),
    (0, 20, -34),
    (0, -20, -34),
    (20, 20, -15),
    (20, -20, -15),
    (0, -20, -15),
    (20, -20, -34),
]))
fillet2.Radius = 0.5

doc.recompute()
